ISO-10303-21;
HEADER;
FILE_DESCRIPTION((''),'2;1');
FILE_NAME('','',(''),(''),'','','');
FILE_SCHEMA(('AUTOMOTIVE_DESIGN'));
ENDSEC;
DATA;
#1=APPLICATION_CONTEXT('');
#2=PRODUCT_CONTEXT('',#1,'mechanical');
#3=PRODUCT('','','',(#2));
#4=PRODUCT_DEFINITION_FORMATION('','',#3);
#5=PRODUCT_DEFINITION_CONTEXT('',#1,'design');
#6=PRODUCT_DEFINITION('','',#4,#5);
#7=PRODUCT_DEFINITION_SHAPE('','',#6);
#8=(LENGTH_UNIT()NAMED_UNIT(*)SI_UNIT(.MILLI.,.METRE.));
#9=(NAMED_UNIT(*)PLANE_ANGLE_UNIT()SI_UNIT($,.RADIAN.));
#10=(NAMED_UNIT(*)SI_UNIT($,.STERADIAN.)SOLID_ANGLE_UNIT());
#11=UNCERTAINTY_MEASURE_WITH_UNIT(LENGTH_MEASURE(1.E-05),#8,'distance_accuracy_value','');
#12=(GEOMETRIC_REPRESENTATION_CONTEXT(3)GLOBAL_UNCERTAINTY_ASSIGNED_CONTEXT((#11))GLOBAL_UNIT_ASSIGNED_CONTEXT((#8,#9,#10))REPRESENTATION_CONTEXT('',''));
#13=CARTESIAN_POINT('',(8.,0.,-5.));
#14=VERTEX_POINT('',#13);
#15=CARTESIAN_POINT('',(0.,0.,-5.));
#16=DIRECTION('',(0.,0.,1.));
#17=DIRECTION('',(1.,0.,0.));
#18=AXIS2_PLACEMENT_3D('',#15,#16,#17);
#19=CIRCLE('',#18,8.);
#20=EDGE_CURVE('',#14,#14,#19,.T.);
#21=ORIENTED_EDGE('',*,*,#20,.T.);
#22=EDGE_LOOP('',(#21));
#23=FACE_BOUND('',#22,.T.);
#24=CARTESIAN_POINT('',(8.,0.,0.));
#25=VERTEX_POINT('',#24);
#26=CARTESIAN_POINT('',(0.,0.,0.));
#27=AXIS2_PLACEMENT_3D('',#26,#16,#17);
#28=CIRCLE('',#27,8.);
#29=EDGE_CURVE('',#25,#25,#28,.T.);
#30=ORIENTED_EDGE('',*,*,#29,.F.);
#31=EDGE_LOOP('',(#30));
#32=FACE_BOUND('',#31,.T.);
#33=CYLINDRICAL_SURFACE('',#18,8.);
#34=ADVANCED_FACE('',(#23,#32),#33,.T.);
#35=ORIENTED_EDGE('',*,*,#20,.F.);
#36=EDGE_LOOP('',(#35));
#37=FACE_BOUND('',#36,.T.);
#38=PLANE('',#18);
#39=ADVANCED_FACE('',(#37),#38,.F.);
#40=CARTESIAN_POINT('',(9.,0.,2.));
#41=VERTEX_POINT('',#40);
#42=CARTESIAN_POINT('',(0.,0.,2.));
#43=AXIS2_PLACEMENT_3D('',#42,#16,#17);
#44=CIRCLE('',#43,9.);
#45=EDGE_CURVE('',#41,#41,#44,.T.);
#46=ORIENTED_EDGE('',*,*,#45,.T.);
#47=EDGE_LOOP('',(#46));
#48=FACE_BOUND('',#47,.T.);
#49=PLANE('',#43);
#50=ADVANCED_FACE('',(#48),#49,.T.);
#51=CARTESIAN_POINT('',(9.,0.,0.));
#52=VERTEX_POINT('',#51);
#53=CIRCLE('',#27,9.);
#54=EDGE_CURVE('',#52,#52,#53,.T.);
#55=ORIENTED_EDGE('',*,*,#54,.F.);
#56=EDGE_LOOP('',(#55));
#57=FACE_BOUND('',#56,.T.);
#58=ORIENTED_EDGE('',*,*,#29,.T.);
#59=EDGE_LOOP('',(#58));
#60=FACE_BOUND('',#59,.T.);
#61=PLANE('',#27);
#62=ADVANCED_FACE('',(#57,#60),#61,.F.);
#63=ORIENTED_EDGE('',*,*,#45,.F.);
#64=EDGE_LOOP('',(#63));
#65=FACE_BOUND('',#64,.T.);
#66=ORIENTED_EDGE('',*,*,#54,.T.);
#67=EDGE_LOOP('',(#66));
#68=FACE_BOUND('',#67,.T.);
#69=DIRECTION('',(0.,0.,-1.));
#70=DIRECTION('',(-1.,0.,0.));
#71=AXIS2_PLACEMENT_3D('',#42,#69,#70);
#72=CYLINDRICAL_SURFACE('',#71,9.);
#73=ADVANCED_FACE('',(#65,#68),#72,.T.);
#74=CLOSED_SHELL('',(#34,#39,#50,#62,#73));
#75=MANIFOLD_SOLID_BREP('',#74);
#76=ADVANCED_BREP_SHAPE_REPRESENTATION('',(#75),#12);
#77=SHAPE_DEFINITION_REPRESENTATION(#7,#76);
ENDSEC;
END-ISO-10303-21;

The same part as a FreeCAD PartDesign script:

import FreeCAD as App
import Part
import Sketcher
from FreeCAD import Vector
Q = App.Units.Quantity

doc = App.newDocument("Part")
body = doc.addObject("PartDesign::Body", "Body")

sketch1 = body.newObject("Sketcher::SketchObject", "Sketch")
sketch1.AttachmentSupport = (doc.getObject("XY_Plane"), [""])
sketch1.MapMode = "FlatFace"
sketch1.addGeometry(Part.Circle(Vector(0, 0, 0), Vector(0, 0, 1), 9), False)
sketch1.addConstraint([
    Sketcher.Constraint("Coincident", 0, 3, -1, 1),
    Sketcher.Constraint("Diameter", 0, Q("18 mm")),
])
pad1 = body.newObject("PartDesign::Pad", "Pad")
pad1.Profile = sketch1
pad1.Length = 2

sketch2 = body.newObject("Sketcher::SketchObject", "Sketch001")
sketch2.AttachmentSupport = (doc.getObject("XY_Plane"), [""])
sketch2.MapMode = "FlatFace"
sketch2.addGeometry(Part.Circle(Vector(0, 0, 0), Vector(0, 0, 1), 8), False)
sketch2.addConstraint([
    Sketcher.Constraint("Coincident", 0, 3, -1, 1),
    Sketcher.Constraint("Diameter", 0, Q("16 mm")),
])
pad2 = body.newObject("PartDesign::Pad", "Pad001")
pad2.Profile = sketch2
pad2.Length = 5
pad2.Reversed = True

doc.recompute()
